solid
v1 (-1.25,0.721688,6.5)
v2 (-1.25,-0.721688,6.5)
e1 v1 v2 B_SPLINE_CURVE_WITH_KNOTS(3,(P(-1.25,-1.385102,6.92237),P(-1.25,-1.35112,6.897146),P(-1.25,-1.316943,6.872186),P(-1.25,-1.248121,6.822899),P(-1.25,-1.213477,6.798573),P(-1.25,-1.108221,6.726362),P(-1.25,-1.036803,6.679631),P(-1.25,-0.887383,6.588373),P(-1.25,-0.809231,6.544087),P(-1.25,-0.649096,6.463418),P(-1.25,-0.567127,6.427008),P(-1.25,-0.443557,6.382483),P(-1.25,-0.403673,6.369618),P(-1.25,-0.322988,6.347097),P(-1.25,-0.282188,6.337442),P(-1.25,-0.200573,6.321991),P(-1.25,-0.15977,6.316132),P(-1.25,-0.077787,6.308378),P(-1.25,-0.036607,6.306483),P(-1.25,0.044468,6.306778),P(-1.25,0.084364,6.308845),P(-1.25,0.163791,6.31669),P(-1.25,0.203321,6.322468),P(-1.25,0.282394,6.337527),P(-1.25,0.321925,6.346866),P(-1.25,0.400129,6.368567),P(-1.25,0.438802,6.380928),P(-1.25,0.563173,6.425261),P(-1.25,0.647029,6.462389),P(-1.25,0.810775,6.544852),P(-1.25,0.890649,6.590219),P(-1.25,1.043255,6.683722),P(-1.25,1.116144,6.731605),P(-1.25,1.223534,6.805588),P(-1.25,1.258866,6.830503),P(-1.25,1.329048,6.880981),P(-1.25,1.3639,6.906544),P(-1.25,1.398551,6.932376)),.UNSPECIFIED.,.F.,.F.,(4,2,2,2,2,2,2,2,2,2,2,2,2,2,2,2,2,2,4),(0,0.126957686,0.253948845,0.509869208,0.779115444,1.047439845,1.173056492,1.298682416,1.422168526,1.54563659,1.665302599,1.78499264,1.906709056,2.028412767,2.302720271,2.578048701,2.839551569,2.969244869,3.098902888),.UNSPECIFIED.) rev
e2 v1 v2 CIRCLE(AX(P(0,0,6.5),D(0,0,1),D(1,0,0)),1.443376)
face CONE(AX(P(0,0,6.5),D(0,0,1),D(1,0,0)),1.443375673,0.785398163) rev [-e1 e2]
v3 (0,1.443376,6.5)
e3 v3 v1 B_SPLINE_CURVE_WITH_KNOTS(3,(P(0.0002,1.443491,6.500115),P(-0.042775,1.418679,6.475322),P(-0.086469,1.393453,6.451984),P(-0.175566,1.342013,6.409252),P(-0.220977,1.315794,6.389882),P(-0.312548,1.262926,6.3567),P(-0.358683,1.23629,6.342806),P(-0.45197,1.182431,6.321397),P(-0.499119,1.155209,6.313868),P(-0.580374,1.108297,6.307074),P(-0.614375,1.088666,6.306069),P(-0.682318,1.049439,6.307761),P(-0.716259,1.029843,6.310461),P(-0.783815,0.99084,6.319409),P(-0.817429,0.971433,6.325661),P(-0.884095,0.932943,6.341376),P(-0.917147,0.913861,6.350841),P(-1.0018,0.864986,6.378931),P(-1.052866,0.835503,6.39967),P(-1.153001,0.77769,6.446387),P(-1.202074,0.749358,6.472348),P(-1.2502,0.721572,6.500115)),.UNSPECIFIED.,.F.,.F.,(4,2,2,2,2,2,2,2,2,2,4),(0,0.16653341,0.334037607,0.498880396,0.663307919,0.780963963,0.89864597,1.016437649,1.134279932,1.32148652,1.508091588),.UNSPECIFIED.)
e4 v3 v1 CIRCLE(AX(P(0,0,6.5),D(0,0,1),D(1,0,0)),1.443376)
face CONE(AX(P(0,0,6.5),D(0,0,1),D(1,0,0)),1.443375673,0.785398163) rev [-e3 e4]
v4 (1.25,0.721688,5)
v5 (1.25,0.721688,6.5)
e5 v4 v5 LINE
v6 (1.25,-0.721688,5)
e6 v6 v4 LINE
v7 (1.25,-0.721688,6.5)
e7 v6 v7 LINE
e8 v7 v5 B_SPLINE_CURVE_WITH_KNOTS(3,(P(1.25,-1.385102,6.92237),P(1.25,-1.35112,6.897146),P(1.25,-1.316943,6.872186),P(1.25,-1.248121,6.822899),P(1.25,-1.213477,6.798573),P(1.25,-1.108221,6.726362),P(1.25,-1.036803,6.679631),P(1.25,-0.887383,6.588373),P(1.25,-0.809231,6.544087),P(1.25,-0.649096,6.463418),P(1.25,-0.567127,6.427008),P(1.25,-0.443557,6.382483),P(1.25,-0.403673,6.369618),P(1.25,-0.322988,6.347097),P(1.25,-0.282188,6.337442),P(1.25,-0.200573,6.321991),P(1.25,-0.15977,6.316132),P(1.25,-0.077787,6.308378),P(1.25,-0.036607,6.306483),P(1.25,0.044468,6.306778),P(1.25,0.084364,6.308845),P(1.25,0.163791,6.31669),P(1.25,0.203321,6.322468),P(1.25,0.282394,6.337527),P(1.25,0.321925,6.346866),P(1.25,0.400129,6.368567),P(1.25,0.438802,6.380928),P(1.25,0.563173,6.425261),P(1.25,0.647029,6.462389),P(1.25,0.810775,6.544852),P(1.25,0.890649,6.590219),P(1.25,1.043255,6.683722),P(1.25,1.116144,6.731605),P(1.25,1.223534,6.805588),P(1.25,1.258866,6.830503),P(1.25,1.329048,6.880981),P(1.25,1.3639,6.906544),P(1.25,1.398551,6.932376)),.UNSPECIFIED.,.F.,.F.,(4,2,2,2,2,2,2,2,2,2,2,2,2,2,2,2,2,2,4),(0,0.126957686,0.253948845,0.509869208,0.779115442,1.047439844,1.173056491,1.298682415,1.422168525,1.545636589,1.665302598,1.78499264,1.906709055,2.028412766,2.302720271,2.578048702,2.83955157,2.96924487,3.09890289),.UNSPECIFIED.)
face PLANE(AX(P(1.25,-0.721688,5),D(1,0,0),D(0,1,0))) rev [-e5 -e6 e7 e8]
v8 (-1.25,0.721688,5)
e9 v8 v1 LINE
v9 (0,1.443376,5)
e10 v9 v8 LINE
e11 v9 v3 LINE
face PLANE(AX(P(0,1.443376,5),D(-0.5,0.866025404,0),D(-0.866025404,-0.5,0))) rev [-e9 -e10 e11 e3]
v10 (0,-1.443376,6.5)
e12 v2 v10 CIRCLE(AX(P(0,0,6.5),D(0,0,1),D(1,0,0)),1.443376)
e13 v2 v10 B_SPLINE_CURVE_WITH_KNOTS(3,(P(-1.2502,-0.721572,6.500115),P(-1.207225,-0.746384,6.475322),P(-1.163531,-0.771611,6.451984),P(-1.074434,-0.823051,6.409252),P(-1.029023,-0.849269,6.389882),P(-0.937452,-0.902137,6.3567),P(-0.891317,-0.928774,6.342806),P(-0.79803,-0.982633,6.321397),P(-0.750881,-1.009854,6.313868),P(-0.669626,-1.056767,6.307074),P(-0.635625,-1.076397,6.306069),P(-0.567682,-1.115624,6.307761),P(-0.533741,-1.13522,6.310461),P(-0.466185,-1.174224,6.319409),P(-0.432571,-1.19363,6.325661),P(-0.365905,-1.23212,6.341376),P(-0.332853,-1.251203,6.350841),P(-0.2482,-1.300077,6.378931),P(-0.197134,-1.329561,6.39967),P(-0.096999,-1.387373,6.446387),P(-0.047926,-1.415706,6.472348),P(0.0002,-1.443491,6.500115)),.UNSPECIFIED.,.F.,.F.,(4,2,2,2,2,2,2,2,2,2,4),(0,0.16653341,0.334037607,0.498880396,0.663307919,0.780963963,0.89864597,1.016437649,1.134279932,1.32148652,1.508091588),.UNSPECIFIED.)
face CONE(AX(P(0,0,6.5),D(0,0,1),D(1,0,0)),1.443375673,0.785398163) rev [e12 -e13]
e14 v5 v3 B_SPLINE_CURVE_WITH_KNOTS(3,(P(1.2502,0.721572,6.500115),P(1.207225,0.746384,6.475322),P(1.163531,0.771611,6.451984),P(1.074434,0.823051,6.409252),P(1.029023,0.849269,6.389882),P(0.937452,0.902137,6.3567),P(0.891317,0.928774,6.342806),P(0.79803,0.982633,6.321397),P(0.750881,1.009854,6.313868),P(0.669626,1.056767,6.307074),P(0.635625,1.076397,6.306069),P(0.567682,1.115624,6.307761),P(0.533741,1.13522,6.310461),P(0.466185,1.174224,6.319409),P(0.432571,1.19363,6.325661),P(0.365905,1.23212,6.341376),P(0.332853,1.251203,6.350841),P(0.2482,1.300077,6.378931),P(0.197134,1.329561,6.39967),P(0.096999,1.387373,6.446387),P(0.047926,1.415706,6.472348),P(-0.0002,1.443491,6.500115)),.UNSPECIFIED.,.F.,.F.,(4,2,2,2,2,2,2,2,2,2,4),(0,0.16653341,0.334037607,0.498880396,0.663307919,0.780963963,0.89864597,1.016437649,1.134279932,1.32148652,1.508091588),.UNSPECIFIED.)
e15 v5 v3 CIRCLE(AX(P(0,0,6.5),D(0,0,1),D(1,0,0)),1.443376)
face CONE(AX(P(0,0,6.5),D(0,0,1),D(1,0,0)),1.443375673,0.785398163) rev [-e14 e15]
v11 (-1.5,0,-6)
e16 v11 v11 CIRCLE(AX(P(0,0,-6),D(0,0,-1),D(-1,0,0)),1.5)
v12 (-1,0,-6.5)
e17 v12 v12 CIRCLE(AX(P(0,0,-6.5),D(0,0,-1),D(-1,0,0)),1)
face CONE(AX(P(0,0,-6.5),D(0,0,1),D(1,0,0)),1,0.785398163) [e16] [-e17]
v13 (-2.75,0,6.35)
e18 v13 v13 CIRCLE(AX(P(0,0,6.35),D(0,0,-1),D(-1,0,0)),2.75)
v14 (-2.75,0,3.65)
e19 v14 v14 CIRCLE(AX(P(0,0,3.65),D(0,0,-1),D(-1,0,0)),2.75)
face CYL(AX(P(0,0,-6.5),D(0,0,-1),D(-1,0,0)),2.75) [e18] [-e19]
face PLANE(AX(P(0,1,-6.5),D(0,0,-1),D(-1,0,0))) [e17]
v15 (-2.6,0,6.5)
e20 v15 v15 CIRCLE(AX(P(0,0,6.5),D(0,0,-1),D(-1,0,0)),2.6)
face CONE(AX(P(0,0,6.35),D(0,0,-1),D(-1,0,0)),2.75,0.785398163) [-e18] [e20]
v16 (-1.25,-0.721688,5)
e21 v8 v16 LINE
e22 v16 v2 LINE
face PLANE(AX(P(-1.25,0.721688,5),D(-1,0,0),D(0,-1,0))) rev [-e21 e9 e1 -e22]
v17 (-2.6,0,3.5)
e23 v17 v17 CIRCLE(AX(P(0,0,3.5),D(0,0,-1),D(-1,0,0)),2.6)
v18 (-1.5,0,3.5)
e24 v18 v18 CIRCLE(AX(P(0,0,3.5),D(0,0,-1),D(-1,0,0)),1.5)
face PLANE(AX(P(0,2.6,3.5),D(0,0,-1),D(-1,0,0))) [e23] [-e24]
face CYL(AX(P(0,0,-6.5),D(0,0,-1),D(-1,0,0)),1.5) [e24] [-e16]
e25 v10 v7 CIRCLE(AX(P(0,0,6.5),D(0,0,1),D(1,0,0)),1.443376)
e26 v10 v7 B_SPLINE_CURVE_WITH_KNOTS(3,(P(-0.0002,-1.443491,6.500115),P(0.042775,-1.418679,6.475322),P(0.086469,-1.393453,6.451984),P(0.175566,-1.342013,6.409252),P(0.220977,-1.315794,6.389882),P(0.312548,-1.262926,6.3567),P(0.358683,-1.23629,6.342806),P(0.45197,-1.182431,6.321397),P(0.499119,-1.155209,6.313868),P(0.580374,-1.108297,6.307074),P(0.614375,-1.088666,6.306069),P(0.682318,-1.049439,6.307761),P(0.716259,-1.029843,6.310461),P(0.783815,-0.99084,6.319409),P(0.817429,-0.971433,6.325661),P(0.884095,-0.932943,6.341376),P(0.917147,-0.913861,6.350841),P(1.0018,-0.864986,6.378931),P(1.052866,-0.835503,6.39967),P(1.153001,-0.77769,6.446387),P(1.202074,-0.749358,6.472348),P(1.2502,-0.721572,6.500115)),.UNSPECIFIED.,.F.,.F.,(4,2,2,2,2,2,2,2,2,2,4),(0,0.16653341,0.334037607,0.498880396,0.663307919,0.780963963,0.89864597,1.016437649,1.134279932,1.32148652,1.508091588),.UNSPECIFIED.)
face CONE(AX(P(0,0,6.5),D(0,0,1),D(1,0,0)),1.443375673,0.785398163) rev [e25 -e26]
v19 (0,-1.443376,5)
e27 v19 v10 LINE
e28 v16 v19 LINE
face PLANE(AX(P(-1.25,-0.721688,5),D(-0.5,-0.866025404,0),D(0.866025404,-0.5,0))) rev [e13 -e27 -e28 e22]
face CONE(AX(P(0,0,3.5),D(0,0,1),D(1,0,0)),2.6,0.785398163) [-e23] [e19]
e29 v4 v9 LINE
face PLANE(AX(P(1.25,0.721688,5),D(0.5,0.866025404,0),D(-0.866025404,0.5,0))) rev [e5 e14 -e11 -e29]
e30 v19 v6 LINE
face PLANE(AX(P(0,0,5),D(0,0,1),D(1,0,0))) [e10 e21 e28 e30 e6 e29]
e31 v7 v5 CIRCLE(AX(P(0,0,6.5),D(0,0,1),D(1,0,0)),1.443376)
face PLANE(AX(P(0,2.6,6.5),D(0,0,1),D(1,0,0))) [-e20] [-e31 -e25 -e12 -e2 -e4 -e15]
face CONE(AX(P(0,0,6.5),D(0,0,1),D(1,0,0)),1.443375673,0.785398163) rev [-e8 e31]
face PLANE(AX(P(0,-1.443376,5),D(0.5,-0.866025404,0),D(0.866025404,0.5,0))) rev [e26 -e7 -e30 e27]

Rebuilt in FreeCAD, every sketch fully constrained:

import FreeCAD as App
import Part
import Sketcher
Q = App.Units.Quantity


def add_polygon(sketch, points):
    """Adds a closed chain of lines whose ends are joined by coincident constraints."""
    first, n = sketch.GeometryCount, len(points)
    for a, b in zip(points, points[1:] + points[:1]):
        sketch.addGeometry(Part.LineSegment(App.Vector(*a, 0), App.Vector(*b, 0)), False)
    for i in range(n):
        sketch.addConstraint(Sketcher.Constraint("Coincident", first + i, 2, first + (i + 1) % n, 1))

doc = App.newDocument("Part")
params = doc.addObject("Spreadsheet::Sheet", "Params")
for row, (alias, value) in enumerate([
    ("sketch1_width", "1 mm"),
    ("sketch1_height", "13 mm"),
    ("sketch1_width2", "2.6 mm"),
    ("sketch1_width3", "1.1 mm"),
    ("sketch1_height2", "2.7 mm"),
    ("revolution_angle", "360 deg"),
    ("pocket1_length", "1.5 mm"),
    ("pocket2_length", "0.5 mm"),
    ("pocket2_taper", "-45 deg"),
], start=1):
    params.set(f"A{row}", alias)
    params.set(f"B{row}", "=" + value)
    params.setAlias(f"B{row}", alias)

body = doc.addObject("PartDesign::Body", "Body")

# Sketch on YZ plane
sketch1 = body.newObject("Sketcher::SketchObject", "Sketch")
sketch1.AttachmentSupport = (doc.getObject("YZ_Plane"), [""])
sketch1.MapMode = "FlatFace"
add_polygon(sketch1, [(2.75, 3.65), (2.75, 6.35), (2.6, 6.5), (0, 6.5), (0, -6.5), (1, -6.5), (1.5, -6), (1.5, 3.5), (2.6, 3.5)])  # lines 0-8
sketch1.addConstraint(Sketcher.Constraint("Vertical", 0))
sketch1.addConstraint(Sketcher.Constraint("Horizontal", 2))
sketch1.addConstraint(Sketcher.Constraint("Vertical", 3))
sketch1.addConstraint(Sketcher.Constraint("Horizontal", 4))
sketch1.addConstraint(Sketcher.Constraint("Vertical", 6))
sketch1.addConstraint(Sketcher.Constraint("Horizontal", 7))
sketch1.addConstraint(Sketcher.Constraint("Symmetric", 2, 2, 3, 2, -1, 1))
sketch1.addConstraint(Sketcher.Constraint("Perpendicular", 1, 5))
sketch1.addConstraint(Sketcher.Constraint("Parallel", 5, 8))
sketch1.addConstraint(Sketcher.Constraint("Vertical", 1, 2, 7, 2))
sketch1.addConstraint(Sketcher.Constraint("Equal", 1, 8))
sketch1.addConstraint(Sketcher.Constraint("DistanceX", 4, 1, 4, 2, 1.0))
sketch1.addConstraint(Sketcher.Constraint("DistanceY", 3, 2, 3, 1, 13.0))
sketch1.addConstraint(Sketcher.Constraint("DistanceX", 2, 2, 2, 1, 2.6))
sketch1.addConstraint(Sketcher.Constraint("DistanceX", 7, 1, 7, 2, 1.1))
sketch1.addConstraint(Sketcher.Constraint("DistanceY", 0, 1, 0, 2, 2.7))
sketch1.addConstraint(Sketcher.Constraint("DistanceY", 6, 1, 6, 2, 9.5))
sketch1.setExpression("Constraints[20]", "Params.sketch1_width")
sketch1.setExpression("Constraints[21]", "Params.sketch1_height")
sketch1.setExpression("Constraints[22]", "Params.sketch1_width2")
sketch1.setExpression("Constraints[23]", "Params.sketch1_width3")
sketch1.setExpression("Constraints[24]", "Params.sketch1_height2")
revolution = body.newObject("PartDesign::Revolution", "Revolution")
revolution.Profile = sketch1
revolution.ReferenceAxis = (sketch1, ["V_Axis"])
revolution.setExpression("Angle", "Params.revolution_angle")

# Sketch on XY plane
sketch2 = body.newObject("Sketcher::SketchObject", "Sketch001")
sketch2.AttachmentSupport = (doc.getObject("XY_Plane"), [""])
sketch2.MapMode = "FlatFace"
sketch2.AttachmentOffset = App.Placement(App.Vector(0, 0, 5), App.Rotation())
add_polygon(sketch2, [(0, 1.4), (-1.2, 0.7), (-1.2, -0.7), (0, -1.4), (1.2, -0.7), (1.2, 0.7)])  # lines 0-5
sketch2.addConstraint(Sketcher.Constraint("Vertical", 1))
sketch2.addConstraint(Sketcher.Constraint("Vertical", 4))
sketch2.addConstraint(Sketcher.Constraint("Symmetric", 0, 2, 3, 2, -1, 1))
sketch2.addConstraint(Sketcher.Constraint("Symmetric", 2, 2, 5, 2, -1, 1))
sketch2.addConstraint(Sketcher.Constraint("PointOnObject", 2, 2, -2))
sketch2.addConstraint(Sketcher.Constraint("Parallel", 2, 5))
sketch2.addConstraint(Sketcher.Constraint("Horizontal", 1, 2, 3, 2))
sketch2.addConstraint(Sketcher.Constraint("Angle", 0, Q("-150 deg")))
sketch2.addConstraint(Sketcher.Constraint("DistanceX", 1, 2, 3, 2, 2.5))
sketch2.addConstraint(Sketcher.Constraint("DistanceY", 1, 2, 1, 1, 1.443376))
pocket1 = body.newObject("PartDesign::Pocket", "Pocket")
pocket1.Profile = sketch2
pocket1.setExpression("Length", "Params.pocket1_length")
pocket1.Reversed = True

# Sketch on XY plane
sketch3 = body.newObject("Sketcher::SketchObject", "Sketch002")
sketch3.AttachmentSupport = (doc.getObject("XY_Plane"), [""])
sketch3.MapMode = "FlatFace"
sketch3.AttachmentOffset = App.Placement(App.Vector(0, 0, 6.5), App.Rotation())
sketch3.addGeometry(Part.Circle(App.Vector(0, 0, 0), App.Vector(0, 0, 1), 1.4), False)
sketch3.addConstraint(Sketcher.Constraint("Coincident", 0, 3, -1, 1))
sketch3.addConstraint(Sketcher.Constraint("Diameter", 0, 2.886751))
pocket2 = body.newObject("PartDesign::Pocket", "Pocket001")
pocket2.Profile = sketch3
pocket2.setExpression("Length", "Params.pocket2_length")
pocket2.setExpression("TaperAngle", "Params.pocket2_taper")

doc.recompute()
